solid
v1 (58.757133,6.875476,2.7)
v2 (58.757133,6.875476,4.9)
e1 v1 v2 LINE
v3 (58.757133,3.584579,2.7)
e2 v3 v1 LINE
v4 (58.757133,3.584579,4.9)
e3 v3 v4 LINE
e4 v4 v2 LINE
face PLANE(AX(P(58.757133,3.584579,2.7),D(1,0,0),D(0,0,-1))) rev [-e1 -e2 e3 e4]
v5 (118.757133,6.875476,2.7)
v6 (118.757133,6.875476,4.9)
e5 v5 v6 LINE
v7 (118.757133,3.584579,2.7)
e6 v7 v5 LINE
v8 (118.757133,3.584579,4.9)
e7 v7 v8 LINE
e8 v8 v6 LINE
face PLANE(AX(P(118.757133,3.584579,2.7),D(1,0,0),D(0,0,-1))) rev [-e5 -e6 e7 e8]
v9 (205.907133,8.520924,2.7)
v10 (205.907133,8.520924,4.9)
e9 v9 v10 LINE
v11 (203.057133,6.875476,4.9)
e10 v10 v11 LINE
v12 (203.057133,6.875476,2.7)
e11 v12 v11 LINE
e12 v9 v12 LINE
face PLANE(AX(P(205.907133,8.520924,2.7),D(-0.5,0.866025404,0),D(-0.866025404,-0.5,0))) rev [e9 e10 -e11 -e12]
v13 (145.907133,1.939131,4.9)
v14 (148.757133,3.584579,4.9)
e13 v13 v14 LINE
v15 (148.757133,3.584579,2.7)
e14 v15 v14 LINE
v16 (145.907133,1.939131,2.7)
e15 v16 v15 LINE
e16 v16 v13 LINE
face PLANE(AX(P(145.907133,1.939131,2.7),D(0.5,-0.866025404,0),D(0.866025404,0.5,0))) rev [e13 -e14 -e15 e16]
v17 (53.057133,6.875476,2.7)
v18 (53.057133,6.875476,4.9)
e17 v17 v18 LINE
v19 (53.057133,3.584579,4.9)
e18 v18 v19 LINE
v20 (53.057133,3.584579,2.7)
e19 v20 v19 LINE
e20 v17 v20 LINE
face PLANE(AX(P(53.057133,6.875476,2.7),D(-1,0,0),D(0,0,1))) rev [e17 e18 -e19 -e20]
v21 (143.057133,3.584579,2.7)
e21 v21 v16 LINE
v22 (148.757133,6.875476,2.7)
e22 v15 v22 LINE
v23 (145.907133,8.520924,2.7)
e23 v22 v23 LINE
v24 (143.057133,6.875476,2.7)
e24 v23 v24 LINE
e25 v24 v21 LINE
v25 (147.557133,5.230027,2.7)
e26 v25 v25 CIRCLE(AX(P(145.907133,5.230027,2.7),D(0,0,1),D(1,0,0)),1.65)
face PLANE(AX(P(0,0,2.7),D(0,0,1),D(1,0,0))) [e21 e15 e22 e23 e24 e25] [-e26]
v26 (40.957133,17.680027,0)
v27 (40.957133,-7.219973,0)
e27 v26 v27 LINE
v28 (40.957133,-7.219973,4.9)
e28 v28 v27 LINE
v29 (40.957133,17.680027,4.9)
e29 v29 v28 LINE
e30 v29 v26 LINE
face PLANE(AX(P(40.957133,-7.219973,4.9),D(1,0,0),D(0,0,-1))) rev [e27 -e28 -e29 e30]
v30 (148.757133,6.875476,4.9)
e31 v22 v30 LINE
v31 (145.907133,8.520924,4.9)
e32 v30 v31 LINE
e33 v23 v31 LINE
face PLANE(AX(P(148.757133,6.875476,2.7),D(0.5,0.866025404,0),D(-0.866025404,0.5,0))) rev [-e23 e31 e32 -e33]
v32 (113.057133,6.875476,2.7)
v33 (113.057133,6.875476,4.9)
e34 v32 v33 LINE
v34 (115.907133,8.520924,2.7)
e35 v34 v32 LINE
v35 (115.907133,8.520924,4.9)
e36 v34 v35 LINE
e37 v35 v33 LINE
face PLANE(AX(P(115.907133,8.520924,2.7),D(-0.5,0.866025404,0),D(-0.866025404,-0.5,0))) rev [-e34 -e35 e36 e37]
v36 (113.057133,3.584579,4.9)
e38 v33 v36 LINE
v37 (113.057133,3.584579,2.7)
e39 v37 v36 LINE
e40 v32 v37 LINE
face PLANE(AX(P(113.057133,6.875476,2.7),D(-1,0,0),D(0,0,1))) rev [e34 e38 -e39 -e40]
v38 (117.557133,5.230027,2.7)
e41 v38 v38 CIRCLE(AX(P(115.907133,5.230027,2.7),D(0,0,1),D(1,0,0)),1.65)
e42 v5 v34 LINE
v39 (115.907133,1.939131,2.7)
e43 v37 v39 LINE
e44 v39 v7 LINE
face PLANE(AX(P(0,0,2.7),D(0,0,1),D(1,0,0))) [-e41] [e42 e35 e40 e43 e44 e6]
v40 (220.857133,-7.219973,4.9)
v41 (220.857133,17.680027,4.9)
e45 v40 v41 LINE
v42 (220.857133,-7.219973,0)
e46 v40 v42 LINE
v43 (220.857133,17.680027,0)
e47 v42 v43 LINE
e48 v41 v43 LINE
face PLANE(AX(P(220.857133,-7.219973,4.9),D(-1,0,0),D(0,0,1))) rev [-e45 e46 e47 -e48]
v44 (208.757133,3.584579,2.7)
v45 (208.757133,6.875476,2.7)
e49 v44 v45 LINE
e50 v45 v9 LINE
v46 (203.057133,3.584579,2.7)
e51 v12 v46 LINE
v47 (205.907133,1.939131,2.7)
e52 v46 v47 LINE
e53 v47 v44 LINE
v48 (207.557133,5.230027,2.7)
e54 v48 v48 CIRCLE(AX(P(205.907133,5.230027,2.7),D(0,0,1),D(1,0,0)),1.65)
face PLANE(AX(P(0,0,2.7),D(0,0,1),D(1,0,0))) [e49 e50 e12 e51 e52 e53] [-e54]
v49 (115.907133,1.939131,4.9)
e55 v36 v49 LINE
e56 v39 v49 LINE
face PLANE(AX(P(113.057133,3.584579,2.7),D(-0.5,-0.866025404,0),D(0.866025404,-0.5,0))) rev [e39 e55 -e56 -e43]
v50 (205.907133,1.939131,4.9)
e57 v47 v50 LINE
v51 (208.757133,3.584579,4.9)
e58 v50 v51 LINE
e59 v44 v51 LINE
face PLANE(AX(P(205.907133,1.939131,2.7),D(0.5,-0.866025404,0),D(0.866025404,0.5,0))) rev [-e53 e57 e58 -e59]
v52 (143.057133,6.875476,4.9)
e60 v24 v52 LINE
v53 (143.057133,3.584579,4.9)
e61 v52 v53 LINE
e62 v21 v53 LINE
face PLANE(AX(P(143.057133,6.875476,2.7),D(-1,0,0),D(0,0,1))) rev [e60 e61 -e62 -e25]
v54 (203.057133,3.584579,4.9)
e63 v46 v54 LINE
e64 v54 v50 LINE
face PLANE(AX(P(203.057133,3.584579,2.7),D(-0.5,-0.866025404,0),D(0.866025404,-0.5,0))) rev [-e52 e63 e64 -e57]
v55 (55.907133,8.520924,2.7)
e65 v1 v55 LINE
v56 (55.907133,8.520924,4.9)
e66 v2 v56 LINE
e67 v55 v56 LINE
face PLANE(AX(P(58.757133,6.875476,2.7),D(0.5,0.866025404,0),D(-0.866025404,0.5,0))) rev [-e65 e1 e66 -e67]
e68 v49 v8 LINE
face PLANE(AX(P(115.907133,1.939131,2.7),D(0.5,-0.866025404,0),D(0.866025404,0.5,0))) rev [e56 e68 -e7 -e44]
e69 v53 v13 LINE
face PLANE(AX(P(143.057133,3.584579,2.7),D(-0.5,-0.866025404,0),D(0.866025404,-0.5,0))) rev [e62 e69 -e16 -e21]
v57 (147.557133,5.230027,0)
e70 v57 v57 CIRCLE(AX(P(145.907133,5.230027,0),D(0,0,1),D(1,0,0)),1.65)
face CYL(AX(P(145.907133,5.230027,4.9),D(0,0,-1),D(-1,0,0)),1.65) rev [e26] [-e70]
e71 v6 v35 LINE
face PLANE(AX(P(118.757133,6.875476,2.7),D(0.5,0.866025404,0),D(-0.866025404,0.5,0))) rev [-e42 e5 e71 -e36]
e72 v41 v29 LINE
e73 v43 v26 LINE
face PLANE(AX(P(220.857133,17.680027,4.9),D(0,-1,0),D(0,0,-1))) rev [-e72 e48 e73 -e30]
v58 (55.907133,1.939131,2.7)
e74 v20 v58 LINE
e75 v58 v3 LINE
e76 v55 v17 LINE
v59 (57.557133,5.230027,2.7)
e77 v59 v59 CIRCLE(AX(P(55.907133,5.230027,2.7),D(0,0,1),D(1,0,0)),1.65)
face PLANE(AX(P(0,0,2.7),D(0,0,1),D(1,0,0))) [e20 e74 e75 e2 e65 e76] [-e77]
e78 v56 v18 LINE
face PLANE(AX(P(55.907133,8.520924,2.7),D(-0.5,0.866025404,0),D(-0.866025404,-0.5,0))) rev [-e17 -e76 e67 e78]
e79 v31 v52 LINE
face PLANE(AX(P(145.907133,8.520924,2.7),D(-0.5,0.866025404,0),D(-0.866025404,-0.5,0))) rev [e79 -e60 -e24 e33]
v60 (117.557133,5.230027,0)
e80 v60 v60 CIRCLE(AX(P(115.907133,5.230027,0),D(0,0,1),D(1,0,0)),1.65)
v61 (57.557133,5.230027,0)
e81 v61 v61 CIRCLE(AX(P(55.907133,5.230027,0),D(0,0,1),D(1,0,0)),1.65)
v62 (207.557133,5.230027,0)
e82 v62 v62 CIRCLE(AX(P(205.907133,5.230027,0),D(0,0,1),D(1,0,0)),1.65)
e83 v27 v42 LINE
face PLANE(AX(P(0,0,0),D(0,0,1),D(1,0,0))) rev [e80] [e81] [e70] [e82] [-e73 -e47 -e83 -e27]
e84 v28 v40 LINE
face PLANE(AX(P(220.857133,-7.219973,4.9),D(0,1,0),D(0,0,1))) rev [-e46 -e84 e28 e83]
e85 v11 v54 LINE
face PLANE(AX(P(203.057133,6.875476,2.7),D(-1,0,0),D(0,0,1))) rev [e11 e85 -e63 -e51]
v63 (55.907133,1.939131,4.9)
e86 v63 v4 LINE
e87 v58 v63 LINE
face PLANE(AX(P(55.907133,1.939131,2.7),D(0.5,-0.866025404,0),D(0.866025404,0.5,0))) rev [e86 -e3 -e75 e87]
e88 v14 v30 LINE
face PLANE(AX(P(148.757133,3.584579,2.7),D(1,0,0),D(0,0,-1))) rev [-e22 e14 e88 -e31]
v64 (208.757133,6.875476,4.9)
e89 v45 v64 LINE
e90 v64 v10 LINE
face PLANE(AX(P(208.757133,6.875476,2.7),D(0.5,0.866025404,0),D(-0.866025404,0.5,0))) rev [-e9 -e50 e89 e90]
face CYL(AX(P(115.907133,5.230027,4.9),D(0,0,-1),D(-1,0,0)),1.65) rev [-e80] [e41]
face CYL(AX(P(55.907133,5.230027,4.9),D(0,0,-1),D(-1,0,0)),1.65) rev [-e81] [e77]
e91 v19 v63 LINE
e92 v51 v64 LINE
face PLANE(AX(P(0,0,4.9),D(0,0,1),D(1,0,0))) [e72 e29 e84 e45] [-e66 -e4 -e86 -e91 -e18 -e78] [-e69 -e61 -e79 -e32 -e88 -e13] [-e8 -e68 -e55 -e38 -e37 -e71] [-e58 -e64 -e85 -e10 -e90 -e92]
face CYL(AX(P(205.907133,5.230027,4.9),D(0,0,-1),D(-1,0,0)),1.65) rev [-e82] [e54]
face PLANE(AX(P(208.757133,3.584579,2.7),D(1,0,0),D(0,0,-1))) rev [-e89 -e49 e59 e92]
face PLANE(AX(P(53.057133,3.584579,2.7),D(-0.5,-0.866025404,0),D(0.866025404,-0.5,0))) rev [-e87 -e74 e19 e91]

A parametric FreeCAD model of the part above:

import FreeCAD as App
import Part
import Sketcher
from FreeCAD import Vector
Q = App.Units.Quantity

doc = App.newDocument("Part")
params = doc.addObject("Spreadsheet::Sheet", "Params")
for row, (alias, value) in enumerate([
    ("sketch1_diameter", "3.3 mm"),
    ("sketch1_width", "179.9 mm"),
    ("sketch1_height", "24.9 mm"),
    ("pad1_length", "4.9 mm"),
    ("pocket1_length", "2.2 mm"),
], start=1):
    params.set(f"A{row}", alias)
    params.set(f"B{row}", "=" + value)
    params.setAlias(f"B{row}", alias)

body = doc.addObject("PartDesign::Body", "Body")

sketch1 = body.newObject("Sketcher::SketchObject", "Sketch")
sketch1.AttachmentSupport = (doc.getObject("XY_Plane"), [""])
sketch1.MapMode = "FlatFace"
sketch1.addGeometry([
    Part.LineSegment(Vector(41, 17.7, 0), Vector(41, -7.2, 0)),
    Part.LineSegment(Vector(41, -7.2, 0), Vector(220.9, -7.2, 0)),
    Part.LineSegment(Vector(220.9, -7.2, 0), Vector(220.9, 17.7, 0)),
    Part.LineSegment(Vector(220.9, 17.7, 0), Vector(41, 17.7, 0)),
    Part.Circle(Vector(55.9, 5.2, 0), Vector(0, 0, 1), 1.6),
    Part.Circle(Vector(115.9, 5.2, 0), Vector(0, 0, 1), 1.6),
    Part.Circle(Vector(145.9, 5.2, 0), Vector(0, 0, 1), 1.6),
    Part.Circle(Vector(205.9, 5.2, 0), Vector(0, 0, 1), 1.6),
], False)
sketch1.addConstraint([
    Sketcher.Constraint("Coincident", 0, 2, 1, 1),
    Sketcher.Constraint("Coincident", 1, 2, 2, 1),
    Sketcher.Constraint("Coincident", 2, 2, 3, 1),
    Sketcher.Constraint("Coincident", 3, 2, 0, 1),
    Sketcher.Constraint("Vertical", 0),
    Sketcher.Constraint("Horizontal", 1),
    Sketcher.Constraint("Vertical", 2),
    Sketcher.Constraint("Horizontal", 3),
    Sketcher.Constraint("Equal", 4, 5),
    Sketcher.Constraint("Equal", 5, 6),
    Sketcher.Constraint("Equal", 6, 7),
    Sketcher.Constraint("Horizontal", 4, 3, 5, 3),
    Sketcher.Constraint("Horizontal", 5, 3, 6, 3),
    Sketcher.Constraint("Horizontal", 6, 3, 7, 3),
    Sketcher.Constraint("Diameter", 4, 3.3),
    Sketcher.Constraint("DistanceX", 1, 1, 1, 2, 179.9),
    Sketcher.Constraint("DistanceY", 0, 2, 0, 1, 24.9),
    Sketcher.Constraint("DistanceX", 4, 3, 5, 3, 60.0),
    Sketcher.Constraint("DistanceX", 5, 3, 6, 3, 30.0),
    Sketcher.Constraint("DistanceX", 6, 3, 7, 3, 60.0),
    Sketcher.Constraint("DistanceX", 0, 2, 4, 3, 14.95),
    Sketcher.Constraint("DistanceY", 0, 2, 4, 3, 12.45),
    Sketcher.Constraint("DistanceX", -1, 1, 4, 3, 55.907133),
    Sketcher.Constraint("DistanceY", -1, 1, 4, 3, 5.230027),
])
sketch1.setExpression("Constraints[14]", "Params.sketch1_diameter")
sketch1.setExpression("Constraints[15]", "Params.sketch1_width")
sketch1.setExpression("Constraints[16]", "Params.sketch1_height")
pad1 = body.newObject("PartDesign::Pad", "Pad")
pad1.Profile = sketch1
pad1.setExpression("Length", "Params.pad1_length")

sketch2 = body.newObject("Sketcher::SketchObject", "Sketch001")
sketch2.AttachmentSupport = (doc.getObject("XY_Plane"), [""])
sketch2.MapMode = "FlatFace"
sketch2.AttachmentOffset = App.Placement(Vector(0, 0, 4.9), App.Rotation())
sketch2.addGeometry([
    Part.LineSegment(Vector(58.8, 3.6, 0), Vector(58.8, 6.9, 0)),
    Part.LineSegment(Vector(58.8, 6.9, 0), Vector(55.9, 8.5, 0)),
    Part.LineSegment(Vector(55.9, 8.5, 0), Vector(53.1, 6.9, 0)),
    Part.LineSegment(Vector(53.1, 6.9, 0), Vector(53.1, 3.6, 0)),
    Part.LineSegment(Vector(53.1, 3.6, 0), Vector(55.9, 1.9, 0)),
    Part.LineSegment(Vector(55.9, 1.9, 0), Vector(58.8, 3.6, 0)),
    Part.LineSegment(Vector(118.8, 3.6, 0), Vector(118.8, 6.9, 0)),
    Part.LineSegment(Vector(118.8, 6.9, 0), Vector(115.9, 8.5, 0)),
    Part.LineSegment(Vector(115.9, 8.5, 0), Vector(113.1, 6.9, 0)),
    Part.LineSegment(Vector(113.1, 6.9, 0), Vector(113.1, 3.6, 0)),
    Part.LineSegment(Vector(113.1, 3.6, 0), Vector(115.9, 1.9, 0)),
    Part.LineSegment(Vector(115.9, 1.9, 0), Vector(118.8, 3.6, 0)),
    Part.LineSegment(Vector(148.8, 3.6, 0), Vector(148.8, 6.9, 0)),
    Part.LineSegment(Vector(148.8, 6.9, 0), Vector(145.9, 8.5, 0)),
    Part.LineSegment(Vector(145.9, 8.5, 0), Vector(143.1, 6.9, 0)),
    Part.LineSegment(Vector(143.1, 6.9, 0), Vector(143.1, 3.6, 0)),
    Part.LineSegment(Vector(143.1, 3.6, 0), Vector(145.9, 1.9, 0)),
    Part.LineSegment(Vector(145.9, 1.9, 0), Vector(148.8, 3.6, 0)),
    Part.LineSegment(Vector(208.8, 3.6, 0), Vector(208.8, 6.9, 0)),
    Part.LineSegment(Vector(208.8, 6.9, 0), Vector(205.9, 8.5, 0)),
    Part.LineSegment(Vector(205.9, 8.5, 0), Vector(203.1, 6.9, 0)),
    Part.LineSegment(Vector(203.1, 6.9, 0), Vector(203.1, 3.6, 0)),
    Part.LineSegment(Vector(203.1, 3.6, 0), Vector(205.9, 1.9, 0)),
    Part.LineSegment(Vector(205.9, 1.9, 0), Vector(208.8, 3.6, 0)),
], False)
sketch2.addConstraint([
    Sketcher.Constraint("Coincident", 0, 2, 1, 1),
    Sketcher.Constraint("Coincident", 1, 2, 2, 1),
    Sketcher.Constraint("Coincident", 2, 2, 3, 1),
    Sketcher.Constraint("Coincident", 3, 2, 4, 1),
    Sketcher.Constraint("Coincident", 4, 2, 5, 1),
    Sketcher.Constraint("Coincident", 5, 2, 0, 1),
    Sketcher.Constraint("Coincident", 6, 2, 7, 1),
    Sketcher.Constraint("Coincident", 7, 2, 8, 1),
    Sketcher.Constraint("Coincident", 8, 2, 9, 1),
    Sketcher.Constraint("Coincident", 9, 2, 10, 1),
    Sketcher.Constraint("Coincident", 10, 2, 11, 1),
    Sketcher.Constraint("Coincident", 11, 2, 6, 1),
    Sketcher.Constraint("Coincident", 12, 2, 13, 1),
    Sketcher.Constraint("Coincident", 13, 2, 14, 1),
    Sketcher.Constraint("Coincident", 14, 2, 15, 1),
    Sketcher.Constraint("Coincident", 15, 2, 16, 1),
    Sketcher.Constraint("Coincident", 16, 2, 17, 1),
    Sketcher.Constraint("Coincident", 17, 2, 12, 1),
    Sketcher.Constraint("Coincident", 18, 2, 19, 1),
    Sketcher.Constraint("Coincident", 19, 2, 20, 1),
    Sketcher.Constraint("Coincident", 20, 2, 21, 1),
    Sketcher.Constraint("Coincident", 21, 2, 22, 1),
    Sketcher.Constraint("Coincident", 22, 2, 23, 1),
    Sketcher.Constraint("Coincident", 23, 2, 18, 1),
    Sketcher.Constraint("Vertical", 0),
    Sketcher.Constraint("Vertical", 3),
    Sketcher.Constraint("Vertical", 6),
    Sketcher.Constraint("Vertical", 9),
    Sketcher.Constraint("Vertical", 12),
    Sketcher.Constraint("Vertical", 15),
    Sketcher.Constraint("Vertical", 18),
    Sketcher.Constraint("Vertical", 21),
    Sketcher.Constraint("Parallel", 1, 4),
    Sketcher.Constraint("Parallel", 2, 5),
    Sketcher.Constraint("Parallel", 4, 7),
    Sketcher.Constraint("Parallel", 5, 8),
    Sketcher.Constraint("Parallel", 7, 10),
    Sketcher.Constraint("Parallel", 8, 11),
    Sketcher.Constraint("Parallel", 10, 13),
    Sketcher.Constraint("Parallel", 11, 14),
    Sketcher.Constraint("Parallel", 13, 16),
    Sketcher.Constraint("Parallel", 14, 17),
    Sketcher.Constraint("Parallel", 16, 19),
    Sketcher.Constraint("Parallel", 17, 20),
    Sketcher.Constraint("Parallel", 19, 22),
    Sketcher.Constraint("Parallel", 20, 23),
    Sketcher.Constraint("Horizontal", 0, 2, 2, 2),
    Sketcher.Constraint("Horizontal", 3, 2, 5, 2),
    Sketcher.Constraint("Horizontal", 2, 2, 6, 2),
    Sketcher.Constraint("Horizontal", 1, 2, 7, 2),
    Sketcher.Constraint("Horizontal", 6, 2, 8, 2),
    Sketcher.Constraint("Horizontal", 5, 2, 9, 2),
    Sketcher.Constraint("Horizontal", 4, 2, 10, 2),
    Sketcher.Constraint("Horizontal", 8, 2, 12, 2),
    Sketcher.Constraint("Horizontal", 7, 2, 13, 2),
    Sketcher.Constraint("Horizontal", 12, 2, 14, 2),
    Sketcher.Constraint("Horizontal", 11, 2, 15, 2),
    Sketcher.Constraint("Horizontal", 10, 2, 16, 2),
    Sketcher.Constraint("Horizontal", 14, 2, 18, 2),
    Sketcher.Constraint("Horizontal", 13, 2, 19, 2),
    Sketcher.Constraint("Horizontal", 18, 2, 20, 2),
    Sketcher.Constraint("Horizontal", 17, 2, 21, 2),
    Sketcher.Constraint("Horizontal", 16, 2, 22, 2),
    Sketcher.Constraint("Vertical", 1, 2, 4, 2),
    Sketcher.Constraint("Angle", 1, Q("150 deg")),
    Sketcher.Constraint("DistanceX", 0, 2, 6, 2, 60.0),
    Sketcher.Constraint("DistanceX", 6, 2, 12, 2, 30.0),
    Sketcher.Constraint("DistanceX", 12, 2, 18, 2, 60.0),
    Sketcher.Constraint("DistanceX", 2, 2, 0, 2, 5.7),
    Sketcher.Constraint("DistanceY", 0, 1, 0, 2, 3.290897),
    Sketcher.Constraint("DistanceY", -1, 1, 3, 2, 3.584579),
    Sketcher.Constraint("DistanceX", -1, 1, 0, 2, 58.757133),
])
pocket1 = body.newObject("PartDesign::Pocket", "Pocket")
pocket1.Profile = sketch2
pocket1.setExpression("Length", "Params.pocket1_length")

doc.recompute()
